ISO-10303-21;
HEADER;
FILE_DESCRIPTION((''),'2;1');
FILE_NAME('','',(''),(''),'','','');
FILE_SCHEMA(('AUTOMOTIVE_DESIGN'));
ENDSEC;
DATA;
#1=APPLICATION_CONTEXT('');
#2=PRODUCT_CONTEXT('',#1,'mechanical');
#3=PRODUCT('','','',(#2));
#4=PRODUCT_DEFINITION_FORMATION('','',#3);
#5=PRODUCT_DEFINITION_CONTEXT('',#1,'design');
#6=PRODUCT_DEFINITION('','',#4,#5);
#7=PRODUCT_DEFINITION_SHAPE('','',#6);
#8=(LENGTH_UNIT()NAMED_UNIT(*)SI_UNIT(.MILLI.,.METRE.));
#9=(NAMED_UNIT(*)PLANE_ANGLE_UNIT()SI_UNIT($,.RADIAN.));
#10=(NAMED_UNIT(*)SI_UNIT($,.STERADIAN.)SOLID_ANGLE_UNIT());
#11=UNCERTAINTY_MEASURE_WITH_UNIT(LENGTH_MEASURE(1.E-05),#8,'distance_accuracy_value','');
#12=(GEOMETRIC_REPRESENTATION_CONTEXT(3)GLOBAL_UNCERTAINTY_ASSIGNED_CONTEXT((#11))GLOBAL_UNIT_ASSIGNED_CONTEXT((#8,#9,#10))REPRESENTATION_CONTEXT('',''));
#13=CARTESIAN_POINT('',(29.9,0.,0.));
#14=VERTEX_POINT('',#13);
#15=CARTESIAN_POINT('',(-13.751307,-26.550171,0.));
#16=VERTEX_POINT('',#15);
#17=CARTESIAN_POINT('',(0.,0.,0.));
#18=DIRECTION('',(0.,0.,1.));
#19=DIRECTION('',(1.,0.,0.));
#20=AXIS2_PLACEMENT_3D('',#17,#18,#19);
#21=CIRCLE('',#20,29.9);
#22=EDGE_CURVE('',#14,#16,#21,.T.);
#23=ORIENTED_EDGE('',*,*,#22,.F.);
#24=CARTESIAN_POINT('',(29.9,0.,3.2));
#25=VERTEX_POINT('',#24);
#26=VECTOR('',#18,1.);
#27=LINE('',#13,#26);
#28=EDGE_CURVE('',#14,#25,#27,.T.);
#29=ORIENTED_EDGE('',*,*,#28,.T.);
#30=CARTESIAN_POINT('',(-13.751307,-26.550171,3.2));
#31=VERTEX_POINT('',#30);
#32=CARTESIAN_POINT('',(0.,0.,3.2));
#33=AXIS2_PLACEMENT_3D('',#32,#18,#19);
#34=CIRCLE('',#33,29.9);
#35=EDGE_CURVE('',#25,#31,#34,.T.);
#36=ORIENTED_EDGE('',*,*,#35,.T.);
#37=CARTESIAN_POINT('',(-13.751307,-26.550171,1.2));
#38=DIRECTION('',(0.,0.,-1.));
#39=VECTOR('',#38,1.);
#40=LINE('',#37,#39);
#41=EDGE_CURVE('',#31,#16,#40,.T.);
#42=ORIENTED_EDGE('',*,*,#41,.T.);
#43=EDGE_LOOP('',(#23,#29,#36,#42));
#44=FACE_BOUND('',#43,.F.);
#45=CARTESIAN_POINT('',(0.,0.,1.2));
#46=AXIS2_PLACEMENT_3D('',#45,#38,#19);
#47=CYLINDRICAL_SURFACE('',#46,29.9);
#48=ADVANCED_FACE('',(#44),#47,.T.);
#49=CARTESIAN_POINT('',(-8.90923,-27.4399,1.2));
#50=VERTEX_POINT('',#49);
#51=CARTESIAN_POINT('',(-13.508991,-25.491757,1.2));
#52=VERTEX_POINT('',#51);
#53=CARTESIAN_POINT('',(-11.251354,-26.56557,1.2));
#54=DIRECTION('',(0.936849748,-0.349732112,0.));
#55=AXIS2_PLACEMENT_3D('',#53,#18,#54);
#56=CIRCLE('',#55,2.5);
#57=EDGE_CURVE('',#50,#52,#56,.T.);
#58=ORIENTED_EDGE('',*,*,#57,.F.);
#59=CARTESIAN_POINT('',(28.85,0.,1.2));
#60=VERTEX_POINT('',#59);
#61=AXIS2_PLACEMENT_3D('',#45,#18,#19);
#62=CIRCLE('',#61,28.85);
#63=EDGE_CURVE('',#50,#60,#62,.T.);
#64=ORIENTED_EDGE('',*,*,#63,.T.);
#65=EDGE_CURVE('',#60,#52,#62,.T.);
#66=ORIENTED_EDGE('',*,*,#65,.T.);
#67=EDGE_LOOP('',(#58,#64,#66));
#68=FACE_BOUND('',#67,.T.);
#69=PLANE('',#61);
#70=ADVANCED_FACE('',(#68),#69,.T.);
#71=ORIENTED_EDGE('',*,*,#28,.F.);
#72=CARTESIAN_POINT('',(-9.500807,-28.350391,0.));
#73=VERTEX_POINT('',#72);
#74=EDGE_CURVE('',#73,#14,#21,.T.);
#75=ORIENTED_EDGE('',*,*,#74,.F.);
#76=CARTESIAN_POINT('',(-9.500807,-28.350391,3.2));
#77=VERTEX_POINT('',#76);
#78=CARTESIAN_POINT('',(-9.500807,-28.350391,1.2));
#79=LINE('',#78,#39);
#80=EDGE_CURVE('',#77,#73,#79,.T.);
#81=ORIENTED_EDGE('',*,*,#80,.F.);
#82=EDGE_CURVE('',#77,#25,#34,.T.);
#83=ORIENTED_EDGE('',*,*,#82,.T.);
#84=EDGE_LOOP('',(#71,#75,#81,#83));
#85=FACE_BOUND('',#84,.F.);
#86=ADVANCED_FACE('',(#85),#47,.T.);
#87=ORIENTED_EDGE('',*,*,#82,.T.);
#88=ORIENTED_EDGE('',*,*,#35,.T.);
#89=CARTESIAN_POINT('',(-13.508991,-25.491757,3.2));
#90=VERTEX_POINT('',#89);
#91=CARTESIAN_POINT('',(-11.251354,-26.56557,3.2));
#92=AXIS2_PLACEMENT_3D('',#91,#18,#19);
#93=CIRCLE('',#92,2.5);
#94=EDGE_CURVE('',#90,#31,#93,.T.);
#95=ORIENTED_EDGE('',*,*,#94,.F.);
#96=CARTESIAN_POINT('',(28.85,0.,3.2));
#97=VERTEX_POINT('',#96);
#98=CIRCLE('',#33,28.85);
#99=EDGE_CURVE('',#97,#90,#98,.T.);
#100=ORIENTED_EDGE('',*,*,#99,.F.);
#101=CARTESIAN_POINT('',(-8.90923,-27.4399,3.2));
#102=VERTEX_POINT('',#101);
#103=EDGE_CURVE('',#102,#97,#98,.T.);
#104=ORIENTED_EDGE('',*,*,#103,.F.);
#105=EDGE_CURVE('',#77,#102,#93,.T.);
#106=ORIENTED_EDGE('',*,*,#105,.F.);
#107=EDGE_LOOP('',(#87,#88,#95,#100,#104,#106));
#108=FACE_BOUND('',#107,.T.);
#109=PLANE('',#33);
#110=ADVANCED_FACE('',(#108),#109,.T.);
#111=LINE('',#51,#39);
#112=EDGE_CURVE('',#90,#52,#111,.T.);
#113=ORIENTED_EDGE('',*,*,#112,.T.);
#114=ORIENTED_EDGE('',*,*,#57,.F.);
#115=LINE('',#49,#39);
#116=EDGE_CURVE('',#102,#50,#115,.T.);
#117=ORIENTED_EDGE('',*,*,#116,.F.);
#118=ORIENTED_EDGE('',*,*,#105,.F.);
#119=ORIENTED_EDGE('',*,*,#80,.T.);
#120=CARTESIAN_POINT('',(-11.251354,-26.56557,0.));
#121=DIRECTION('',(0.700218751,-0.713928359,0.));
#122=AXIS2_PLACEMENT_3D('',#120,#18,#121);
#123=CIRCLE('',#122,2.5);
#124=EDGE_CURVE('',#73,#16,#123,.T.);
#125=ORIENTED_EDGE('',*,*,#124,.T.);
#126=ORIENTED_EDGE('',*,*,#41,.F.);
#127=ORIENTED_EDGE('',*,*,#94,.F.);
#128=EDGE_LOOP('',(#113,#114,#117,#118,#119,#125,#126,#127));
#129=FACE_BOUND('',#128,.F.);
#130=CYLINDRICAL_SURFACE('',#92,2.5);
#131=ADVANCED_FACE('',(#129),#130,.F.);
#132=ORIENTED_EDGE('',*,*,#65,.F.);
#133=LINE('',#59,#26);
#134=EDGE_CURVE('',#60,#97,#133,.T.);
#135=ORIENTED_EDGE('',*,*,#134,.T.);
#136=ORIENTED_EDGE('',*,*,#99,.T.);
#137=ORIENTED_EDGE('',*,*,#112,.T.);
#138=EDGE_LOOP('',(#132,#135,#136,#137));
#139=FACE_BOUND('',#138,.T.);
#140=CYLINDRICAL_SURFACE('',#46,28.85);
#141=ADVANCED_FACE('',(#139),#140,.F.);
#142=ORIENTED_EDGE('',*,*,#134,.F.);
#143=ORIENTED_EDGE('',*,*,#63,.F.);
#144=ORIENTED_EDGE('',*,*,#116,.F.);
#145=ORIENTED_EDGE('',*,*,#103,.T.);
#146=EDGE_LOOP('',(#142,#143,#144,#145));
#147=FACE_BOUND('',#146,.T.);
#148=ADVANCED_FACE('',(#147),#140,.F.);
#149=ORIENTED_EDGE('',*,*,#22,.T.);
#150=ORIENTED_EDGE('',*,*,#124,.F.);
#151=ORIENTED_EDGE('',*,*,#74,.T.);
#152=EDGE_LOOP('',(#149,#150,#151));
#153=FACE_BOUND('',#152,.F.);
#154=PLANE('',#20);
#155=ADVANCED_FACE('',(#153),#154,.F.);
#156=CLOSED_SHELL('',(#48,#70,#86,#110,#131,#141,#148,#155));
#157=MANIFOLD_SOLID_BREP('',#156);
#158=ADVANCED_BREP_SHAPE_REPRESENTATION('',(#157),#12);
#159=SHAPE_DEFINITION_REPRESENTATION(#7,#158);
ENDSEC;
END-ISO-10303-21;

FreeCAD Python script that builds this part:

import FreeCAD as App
import Part
import Sketcher

V = App.Vector
Q = App.Units.Quantity

doc = App.newDocument("Part")
body = doc.addObject("PartDesign::Body", "Body")

sketch1 = body.newObject("Sketcher::SketchObject", "Sketch")
sketch1.AttachmentSupport = (doc.getObject("XY_Plane"), [""])
sketch1.MapMode = "FlatFace"
sketch1.addGeometry(Part.Circle(V(0, 0, 0), V(0, 0, 1), 30), False)
sketch1.addConstraint([
    Sketcher.Constraint("Coincident", 0, 3, -1, 1),
    Sketcher.Constraint("Diameter", 0, Q("59.8 mm")),
])
pad1 = body.newObject("PartDesign::Pad", "Pad")
pad1.Profile = sketch1
pad1.Length = 1.2

sketch2 = body.newObject("Sketcher::SketchObject", "Sketch001")
sketch2.AttachmentSupport = (doc.getObject("XY_Plane"), [""])
sketch2.MapMode = "FlatFace"
sketch2.AttachmentOffset = App.Placement(V(0, 0, 1.2), App.Rotation())
sketch2.addGeometry([
    Part.Circle(V(0, 0, 0), V(0, 0, 1), 30),
    Part.Circle(V(0, 0, 0), V(0, 0, 1), 29),
], False)
sketch2.addConstraint([
    Sketcher.Constraint("Coincident", 0, 3, -1, 1),
    Sketcher.Constraint("Coincident", 1, 3, -1, 1),
    Sketcher.Constraint("Diameter", 0, Q("59.8 mm")),
    Sketcher.Constraint("Diameter", 1, Q("57.7 mm")),
])
pad2 = body.newObject("PartDesign::Pad", "Pad001")
pad2.Profile = sketch2
pad2.Length = 2

sketch3 = body.newObject("Sketcher::SketchObject", "Sketch002")
sketch3.AttachmentSupport = (doc.getObject("XY_Plane"), [""])
sketch3.MapMode = "FlatFace"
sketch3.AttachmentOffset = App.Placement(V(0, 0, 3.2), App.Rotation())
sketch3.addGeometry(Part.Circle(V(-11.3, -26.6, 0), V(0, 0, 1), 2.5), False)
sketch3.addConstraint([
    Sketcher.Constraint("Diameter", 0, Q("5 mm")),
    Sketcher.Constraint("DistanceY", 0, 3, -1, 1, Q("26.56557 mm")),
    Sketcher.Constraint("DistanceX", 0, 3, -1, 1, Q("11.251354 mm")),
])
pocket1 = body.newObject("PartDesign::Pocket", "Pocket")
pocket1.Profile = sketch3
pocket1.Length = 3.2

doc.recompute()
